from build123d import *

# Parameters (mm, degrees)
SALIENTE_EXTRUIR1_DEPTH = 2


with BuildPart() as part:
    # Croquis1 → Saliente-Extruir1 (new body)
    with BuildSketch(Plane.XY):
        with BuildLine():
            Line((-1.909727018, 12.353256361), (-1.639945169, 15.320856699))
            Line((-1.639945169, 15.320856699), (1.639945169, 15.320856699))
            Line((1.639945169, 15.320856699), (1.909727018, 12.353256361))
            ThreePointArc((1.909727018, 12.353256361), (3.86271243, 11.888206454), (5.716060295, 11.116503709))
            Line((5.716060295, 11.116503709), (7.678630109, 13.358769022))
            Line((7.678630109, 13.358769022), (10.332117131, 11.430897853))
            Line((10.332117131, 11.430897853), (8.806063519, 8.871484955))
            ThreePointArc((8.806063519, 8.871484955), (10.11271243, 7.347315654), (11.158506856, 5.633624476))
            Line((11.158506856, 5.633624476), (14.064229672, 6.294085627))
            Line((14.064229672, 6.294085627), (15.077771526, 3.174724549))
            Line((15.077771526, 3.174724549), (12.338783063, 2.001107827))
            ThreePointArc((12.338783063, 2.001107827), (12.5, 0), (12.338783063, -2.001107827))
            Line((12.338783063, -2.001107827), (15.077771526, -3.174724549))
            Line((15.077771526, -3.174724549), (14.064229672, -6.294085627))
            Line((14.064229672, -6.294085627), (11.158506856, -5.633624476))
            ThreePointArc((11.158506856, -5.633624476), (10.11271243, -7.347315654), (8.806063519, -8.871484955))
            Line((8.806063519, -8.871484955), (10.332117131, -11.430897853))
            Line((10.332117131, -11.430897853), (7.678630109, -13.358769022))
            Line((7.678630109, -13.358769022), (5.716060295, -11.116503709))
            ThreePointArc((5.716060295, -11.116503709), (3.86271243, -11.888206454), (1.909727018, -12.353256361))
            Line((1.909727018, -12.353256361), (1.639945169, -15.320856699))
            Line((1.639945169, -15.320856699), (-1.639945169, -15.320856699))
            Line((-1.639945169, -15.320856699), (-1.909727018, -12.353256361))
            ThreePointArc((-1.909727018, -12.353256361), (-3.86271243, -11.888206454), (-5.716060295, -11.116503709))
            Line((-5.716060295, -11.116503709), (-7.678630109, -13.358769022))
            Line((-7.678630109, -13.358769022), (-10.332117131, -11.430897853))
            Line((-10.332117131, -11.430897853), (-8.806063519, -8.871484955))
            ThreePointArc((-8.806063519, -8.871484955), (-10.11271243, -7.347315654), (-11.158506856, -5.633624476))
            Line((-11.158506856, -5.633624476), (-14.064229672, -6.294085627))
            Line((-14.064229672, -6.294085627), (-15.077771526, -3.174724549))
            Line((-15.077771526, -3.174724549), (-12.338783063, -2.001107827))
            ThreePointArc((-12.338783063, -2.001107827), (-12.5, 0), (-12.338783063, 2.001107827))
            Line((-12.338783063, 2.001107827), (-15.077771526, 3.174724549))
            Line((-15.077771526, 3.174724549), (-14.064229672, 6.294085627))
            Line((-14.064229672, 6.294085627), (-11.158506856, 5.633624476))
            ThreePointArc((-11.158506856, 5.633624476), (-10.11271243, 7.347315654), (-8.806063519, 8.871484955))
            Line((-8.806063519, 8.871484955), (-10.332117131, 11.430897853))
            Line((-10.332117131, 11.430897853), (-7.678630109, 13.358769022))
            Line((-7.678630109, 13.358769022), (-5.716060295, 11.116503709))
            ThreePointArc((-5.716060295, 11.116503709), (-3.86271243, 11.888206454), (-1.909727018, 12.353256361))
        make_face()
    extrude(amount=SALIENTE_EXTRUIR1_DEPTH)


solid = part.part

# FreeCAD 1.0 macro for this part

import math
import FreeCAD as App
import Part
import Sketcher
Q = App.Units.Quantity

doc = App.newDocument("Part")
body = doc.addObject("PartDesign::Body", "Body")

sketch1 = doc.addObject("Sketcher::SketchObject", "Sketch")
body.addObject(sketch1)
sketch1.AttachmentSupport = (doc.XY_Plane, [""])
sketch1.MapMode = "FlatFace"
sketch1.addGeometry([
    Part.LineSegment(App.Vector(-1.639945, 15.320857, 0), App.Vector(-1.909727, 12.353256, 0)),
    Part.ArcOfCircle(Part.Circle(App.Vector(0, 0, 0), App.Vector(0, 0, 1), 12.5), math.radians(98.78796), math.radians(117.21204)),
    Part.LineSegment(App.Vector(-5.71606, 11.116504, 0), App.Vector(-7.67863, 13.358769, 0)),
    Part.LineSegment(App.Vector(-7.67863, 13.358769, 0), App.Vector(-10.332117, 11.430898, 0)),
    Part.LineSegment(App.Vector(-10.332117, 11.430898, 0), App.Vector(-8.806064, 8.871485, 0)),
    Part.ArcOfCircle(Part.Circle(App.Vector(0, 0, 0), App.Vector(0, 0, 1), 12.5), math.radians(134.78796), math.radians(153.21204)),
    Part.LineSegment(App.Vector(-11.158507, 5.633624, 0), App.Vector(-14.06423, 6.294086, 0)),
    Part.LineSegment(App.Vector(-14.06423, 6.294086, 0), App.Vector(-15.077772, 3.174725, 0)),
    Part.LineSegment(App.Vector(-15.077772, 3.174725, 0), App.Vector(-12.338783, 2.001108, 0)),
    Part.ArcOfCircle(Part.Circle(App.Vector(0, 0, 0), App.Vector(0, 0, 1), 12.5), math.radians(170.78796), math.radians(189.21204)),
    Part.LineSegment(App.Vector(-12.338783, -2.001108, 0), App.Vector(-15.077772, -3.174725, 0)),
    Part.LineSegment(App.Vector(-15.077772, -3.174725, 0), App.Vector(-14.06423, -6.294086, 0)),
    Part.LineSegment(App.Vector(-14.06423, -6.294086, 0), App.Vector(-11.158507, -5.633624, 0)),
    Part.ArcOfCircle(Part.Circle(App.Vector(0, 0, 0), App.Vector(0, 0, 1), 12.5), math.radians(-153.21204), math.radians(-134.78796)),
    Part.LineSegment(App.Vector(-8.806064, -8.871485, 0), App.Vector(-10.332117, -11.430898, 0)),
    Part.LineSegment(App.Vector(-10.332117, -11.430898, 0), App.Vector(-7.67863, -13.358769, 0)),
    Part.LineSegment(App.Vector(-7.67863, -13.358769, 0), App.Vector(-5.71606, -11.116504, 0)),
    Part.ArcOfCircle(Part.Circle(App.Vector(0, 0, 0), App.Vector(0, 0, 1), 12.5), math.radians(-117.21204), math.radians(-98.78796)),
    Part.LineSegment(App.Vector(-1.909727, -12.353256, 0), App.Vector(-1.639945, -15.320857, 0)),
    Part.LineSegment(App.Vector(-1.639945, -15.320857, 0), App.Vector(1.639945, -15.320857, 0)),
    Part.LineSegment(App.Vector(1.639945, -15.320857, 0), App.Vector(1.909727, -12.353256, 0)),
    Part.ArcOfCircle(Part.Circle(App.Vector(0, 0, 0), App.Vector(0, 0, 1), 12.5), math.radians(-81.21204), math.radians(-62.78796)),
    Part.LineSegment(App.Vector(5.71606, -11.116504, 0), App.Vector(7.67863, -13.358769, 0)),
    Part.LineSegment(App.Vector(7.67863, -13.358769, 0), App.Vector(10.332117, -11.430898, 0)),
    Part.LineSegment(App.Vector(10.332117, -11.430898, 0), App.Vector(8.806064, -8.871485, 0)),
    Part.ArcOfCircle(Part.Circle(App.Vector(0, 0, 0), App.Vector(0, 0, 1), 12.5), math.radians(-45.21204), math.radians(-26.78796)),
    Part.LineSegment(App.Vector(11.158507, -5.633624, 0), App.Vector(14.06423, -6.294086, 0)),
    Part.LineSegment(App.Vector(14.06423, -6.294086, 0), App.Vector(15.077772, -3.174725, 0)),
    Part.LineSegment(App.Vector(15.077772, -3.174725, 0), App.Vector(12.338783, -2.001108, 0)),
    Part.ArcOfCircle(Part.Circle(App.Vector(0, 0, 0), App.Vector(0, 0, 1), 12.5), math.radians(-9.21204), math.radians(9.21204)),
    Part.LineSegment(App.Vector(12.338783, 2.001108, 0), App.Vector(15.077772, 3.174725, 0)),
    Part.LineSegment(App.Vector(15.077772, 3.174725, 0), App.Vector(14.06423, 6.294086, 0)),
    Part.LineSegment(App.Vector(14.06423, 6.294086, 0), App.Vector(11.158507, 5.633624, 0)),
    Part.ArcOfCircle(Part.Circle(App.Vector(0, 0, 0), App.Vector(0, 0, 1), 12.5), math.radians(26.78796), math.radians(45.21204)),
    Part.LineSegment(App.Vector(8.806064, 8.871485, 0), App.Vector(10.332117, 11.430898, 0)),
    Part.LineSegment(App.Vector(10.332117, 11.430898, 0), App.Vector(7.67863, 13.358769, 0)),
    Part.LineSegment(App.Vector(7.67863, 13.358769, 0), App.Vector(5.71606, 11.116504, 0)),
    Part.ArcOfCircle(Part.Circle(App.Vector(0, 0, 0), App.Vector(0, 0, 1), 12.5), math.radians(62.78796), math.radians(81.21204)),
    Part.LineSegment(App.Vector(1.909727, 12.353256, 0), App.Vector(1.639945, 15.320857, 0)),
    Part.LineSegment(App.Vector(1.639945, 15.320857, 0), App.Vector(-1.639945, 15.320857, 0)),
], False)
sketch1.addConstraint([
    Sketcher.Constraint("Coincident", 0, 2, 1, 1),
    Sketcher.Constraint("Coincident", 1, 2, 2, 1),
    Sketcher.Constraint("Coincident", 2, 2, 3, 1),
    Sketcher.Constraint("Coincident", 3, 2, 4, 1),
    Sketcher.Constraint("Coincident", 4, 2, 5, 1),
    Sketcher.Constraint("Coincident", 5, 2, 6, 1),
    Sketcher.Constraint("Coincident", 6, 2, 7, 1),
    Sketcher.Constraint("Coincident", 7, 2, 8, 1),
    Sketcher.Constraint("Coincident", 8, 2, 9, 1),
    Sketcher.Constraint("Coincident", 9, 2, 10, 1),
    Sketcher.Constraint("Coincident", 10, 2, 11, 1),
    Sketcher.Constraint("Coincident", 11, 2, 12, 1),
    Sketcher.Constraint("Coincident", 12, 2, 13, 1),
    Sketcher.Constraint("Coincident", 13, 2, 14, 1),
    Sketcher.Constraint("Coincident", 14, 2, 15, 1),
    Sketcher.Constraint("Coincident", 15, 2, 16, 1),
    Sketcher.Constraint("Coincident", 16, 2, 17, 1),
    Sketcher.Constraint("Coincident", 17, 2, 18, 1),
    Sketcher.Constraint("Coincident", 18, 2, 19, 1),
    Sketcher.Constraint("Coincident", 19, 2, 20, 1),
    Sketcher.Constraint("Coincident", 20, 2, 21, 1),
    Sketcher.Constraint("Coincident", 21, 2, 22, 1),
    Sketcher.Constraint("Coincident", 22, 2, 23, 1),
    Sketcher.Constraint("Coincident", 23, 2, 24, 1),
    Sketcher.Constraint("Coincident", 24, 2, 25, 1),
    Sketcher.Constraint("Coincident", 25, 2, 26, 1),
    Sketcher.Constraint("Coincident", 26, 2, 27, 1),
    Sketcher.Constraint("Coincident", 27, 2, 28, 1),
    Sketcher.Constraint("Coincident", 28, 2, 29, 1),
    Sketcher.Constraint("Coincident", 29, 2, 30, 1),
    Sketcher.Constraint("Coincident", 30, 2, 31, 1),
    Sketcher.Constraint("Coincident", 31, 2, 32, 1),
    Sketcher.Constraint("Coincident", 32, 2, 33, 1),
    Sketcher.Constraint("Coincident", 33, 2, 34, 1),
    Sketcher.Constraint("Coincident", 34, 2, 35, 1),
    Sketcher.Constraint("Coincident", 35, 2, 36, 1),
    Sketcher.Constraint("Coincident", 36, 2, 37, 1),
    Sketcher.Constraint("Coincident", 37, 2, 38, 1),
    Sketcher.Constraint("Coincident", 38, 2, 39, 1),
    Sketcher.Constraint("Coincident", 39, 2, 0, 1),
    Sketcher.Constraint("Horizontal", 19),
    Sketcher.Constraint("Horizontal", 39),
    Sketcher.Constraint("Coincident", 1, 3, -1, 1),
    Sketcher.Constraint("Coincident", 5, 3, -1, 1),
    Sketcher.Constraint("Coincident", 9, 3, -1, 1),
    Sketcher.Constraint("Coincident", 13, 3, -1, 1),
    Sketcher.Constraint("Coincident", 17, 3, -1, 1),
    Sketcher.Constraint("Coincident", 21, 3, -1, 1),
    Sketcher.Constraint("Coincident", 25, 3, -1, 1),
    Sketcher.Constraint("Coincident", 29, 3, -1, 1),
    Sketcher.Constraint("Coincident", 33, 3, -1, 1),
    Sketcher.Constraint("Coincident", 37, 3, -1, 1),
    Sketcher.Constraint("Equal", 1, 5),
    Sketcher.Constraint("Equal", 5, 9),
    Sketcher.Constraint("Equal", 9, 13),
    Sketcher.Constraint("Equal", 13, 17),
    Sketcher.Constraint("Equal", 17, 21),
    Sketcher.Constraint("Equal", 21, 25),
    Sketcher.Constraint("Equal", 25, 29),
    Sketcher.Constraint("Equal", 29, 33),
    Sketcher.Constraint("Equal", 33, 37),
    Sketcher.Constraint("Symmetric", 2, 2, 22, 2, -1, 1),
    Sketcher.Constraint("Symmetric", 3, 2, 23, 2, -1, 1),
    Sketcher.Constraint("Symmetric", 6, 2, 26, 2, -1, 1),
    Sketcher.Constraint("Symmetric", 7, 2, 27, 2, -1, 1),
    Sketcher.Constraint("Symmetric", 10, 2, 30, 2, -1, 1),
    Sketcher.Constraint("Symmetric", 11, 2, 31, 2, -1, 1),
    Sketcher.Constraint("Symmetric", 14, 2, 34, 2, -1, 1),
    Sketcher.Constraint("Symmetric", 15, 2, 35, 2, -1, 1),
    Sketcher.Constraint("Symmetric", 18, 2, 38, 2, -1, 1),
    Sketcher.Constraint("Symmetric", 15, 2, 22, 2, -2),
    Sketcher.Constraint("Symmetric", 14, 2, 23, 2, -2),
    Sketcher.Constraint("Symmetric", 11, 2, 26, 2, -2),
    Sketcher.Constraint("Symmetric", 10, 2, 27, 2, -2),
    Sketcher.Constraint("Parallel", 0, 20),
    Sketcher.Constraint("Parallel", 2, 22),
    Sketcher.Constraint("Parallel", 4, 24),
    Sketcher.Constraint("Parallel", 6, 26),
    Sketcher.Constraint("Parallel", 8, 28),
    Sketcher.Constraint("Parallel", 10, 30),
    Sketcher.Constraint("Parallel", 12, 32),
    Sketcher.Constraint("Parallel", 14, 34),
    Sketcher.Constraint("Parallel", 16, 36),
    Sketcher.Constraint("Parallel", 18, 38),
    Sketcher.Constraint("Horizontal", 17, 2, 20, 2),
    Sketcher.Constraint("Horizontal", 16, 2, 21, 2),
    Sketcher.Constraint("Horizontal", 13, 2, 24, 2),
    Sketcher.Constraint("Horizontal", 12, 2, 25, 2),
    Sketcher.Constraint("Horizontal", 9, 2, 28, 2),
    Sketcher.Constraint("Horizontal", 0, 2, 37, 2),
    Sketcher.Constraint("Vertical", 19, 2, 38, 2),
    Sketcher.Constraint("Equal", 0, 2),
    Sketcher.Constraint("Equal", 2, 4),
    Sketcher.Constraint("Equal", 4, 6),
    Sketcher.Constraint("Equal", 3, 7),
    Sketcher.Constraint("Equal", 6, 8),
    Sketcher.Constraint("Radius", 1, 12.5),
    Sketcher.Constraint("Angle", 3, Q("-144 deg")),
    Sketcher.Constraint("Angle", 7, Q("-108 deg")),
    Sketcher.Constraint("DistanceX", 19, 1, 19, 2, 3.27989),
    Sketcher.Constraint("DistanceY", 6, 2, 4, 2, 2.577399),
    Sketcher.Constraint("DistanceX", 6, 2, 2, 2, 6.3856),
    Sketcher.Constraint("DistanceY", 7, 2, 5, 2, 2.4589),
    Sketcher.Constraint("DistanceY", 18, 2, 17, 2, 2.9676),
    Sketcher.Constraint("Distance", 3, 3.27989),
    Sketcher.Constraint("DistanceX", 1, 2, -1, 1, 5.71606),
    Sketcher.Constraint("DistanceX", 2, 2, -1, 1, 7.67863),
])
pad1 = doc.addObject("PartDesign::Pad", "Pad")
body.addObject(pad1)
pad1.Profile = sketch1
pad1.Length = 2

doc.recompute()
